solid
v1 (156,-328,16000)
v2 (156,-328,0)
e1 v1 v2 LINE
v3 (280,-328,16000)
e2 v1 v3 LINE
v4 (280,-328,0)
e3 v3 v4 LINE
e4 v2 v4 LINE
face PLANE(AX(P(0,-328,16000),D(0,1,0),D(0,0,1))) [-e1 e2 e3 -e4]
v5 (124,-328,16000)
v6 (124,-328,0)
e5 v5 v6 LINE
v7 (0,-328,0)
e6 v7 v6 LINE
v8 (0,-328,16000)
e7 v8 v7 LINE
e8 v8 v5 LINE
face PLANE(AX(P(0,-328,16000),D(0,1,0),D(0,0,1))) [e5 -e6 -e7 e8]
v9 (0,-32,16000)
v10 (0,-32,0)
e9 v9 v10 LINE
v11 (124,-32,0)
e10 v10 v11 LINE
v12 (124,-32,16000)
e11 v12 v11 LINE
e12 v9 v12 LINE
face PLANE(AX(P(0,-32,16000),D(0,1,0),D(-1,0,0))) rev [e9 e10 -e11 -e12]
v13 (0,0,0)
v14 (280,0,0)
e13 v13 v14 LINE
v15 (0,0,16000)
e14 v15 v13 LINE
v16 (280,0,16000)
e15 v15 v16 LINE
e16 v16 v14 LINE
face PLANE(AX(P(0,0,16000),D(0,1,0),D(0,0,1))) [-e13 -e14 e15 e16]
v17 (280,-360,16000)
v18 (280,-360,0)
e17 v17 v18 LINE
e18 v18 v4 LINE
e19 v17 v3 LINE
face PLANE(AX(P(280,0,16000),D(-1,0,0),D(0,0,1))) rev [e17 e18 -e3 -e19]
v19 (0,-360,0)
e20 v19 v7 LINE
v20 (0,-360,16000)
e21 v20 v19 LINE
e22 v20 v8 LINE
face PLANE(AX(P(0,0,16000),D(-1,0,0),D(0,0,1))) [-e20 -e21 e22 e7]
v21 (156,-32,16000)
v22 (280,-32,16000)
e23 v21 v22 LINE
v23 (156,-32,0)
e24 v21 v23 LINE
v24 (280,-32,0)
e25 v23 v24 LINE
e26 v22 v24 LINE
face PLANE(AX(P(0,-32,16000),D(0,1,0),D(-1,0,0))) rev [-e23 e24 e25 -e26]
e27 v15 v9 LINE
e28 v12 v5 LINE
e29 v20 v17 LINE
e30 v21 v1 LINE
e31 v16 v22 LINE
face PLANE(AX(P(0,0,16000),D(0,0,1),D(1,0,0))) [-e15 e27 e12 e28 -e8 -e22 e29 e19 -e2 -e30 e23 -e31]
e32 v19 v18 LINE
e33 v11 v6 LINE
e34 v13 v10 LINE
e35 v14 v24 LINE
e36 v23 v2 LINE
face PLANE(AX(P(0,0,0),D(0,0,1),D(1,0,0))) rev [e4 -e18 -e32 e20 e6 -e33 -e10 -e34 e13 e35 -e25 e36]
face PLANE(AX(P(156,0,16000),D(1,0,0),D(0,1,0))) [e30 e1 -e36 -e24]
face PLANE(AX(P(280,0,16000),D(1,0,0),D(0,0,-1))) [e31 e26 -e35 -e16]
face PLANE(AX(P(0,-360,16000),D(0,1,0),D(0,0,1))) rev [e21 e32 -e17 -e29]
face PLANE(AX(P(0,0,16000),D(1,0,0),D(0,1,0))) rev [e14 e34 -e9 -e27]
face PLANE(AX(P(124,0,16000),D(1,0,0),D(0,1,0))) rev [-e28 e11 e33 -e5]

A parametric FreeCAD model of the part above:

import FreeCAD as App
import Part
import Sketcher
Q = App.Units.Quantity

doc = App.newDocument("Part")
params = doc.addObject("Spreadsheet::Sheet", "Params")
for row, (alias, value) in enumerate([
    ("sketch1_width", "124 mm"),
    ("sketch1_width2", "280 mm"),
    ("sketch1_height", "296 mm"),
    ("sketch1_height2", "32 mm"),
    ("pad1_length", "16000 mm"),
], start=1):
    params.set(f"A{row}", alias)
    params.set(f"B{row}", "=" + value)
    params.setAlias(f"B{row}", alias)

body = doc.addObject("PartDesign::Body", "Body")

# Sketch on XY plane
sketch1 = doc.addObject("Sketcher::SketchObject", "Sketch")
body.addObject(sketch1)
sketch1.AttachmentSupport = (doc.XY_Plane, [""])
sketch1.MapMode = "FlatFace"
sketch1.addGeometry([
    Part.LineSegment(App.Vector(280, -328, 0), App.Vector(156, -328, 0)),  # 0
    Part.LineSegment(App.Vector(156, -328, 0), App.Vector(156, -32, 0)),  # 1
    Part.LineSegment(App.Vector(156, -32, 0), App.Vector(280, -32, 0)),  # 2
    Part.LineSegment(App.Vector(280, -32, 0), App.Vector(280, 0, 0)),  # 3
    Part.LineSegment(App.Vector(280, 0, 0), App.Vector(0, 0, 0)),  # 4
    Part.LineSegment(App.Vector(0, 0, 0), App.Vector(0, -32, 0)),  # 5
    Part.LineSegment(App.Vector(0, -32, 0), App.Vector(124, -32, 0)),  # 6
    Part.LineSegment(App.Vector(124, -32, 0), App.Vector(124, -328, 0)),  # 7
    Part.LineSegment(App.Vector(124, -328, 0), App.Vector(0, -328, 0)),  # 8
    Part.LineSegment(App.Vector(0, -328, 0), App.Vector(0, -360, 0)),  # 9
    Part.LineSegment(App.Vector(0, -360, 0), App.Vector(280, -360, 0)),  # 10
    Part.LineSegment(App.Vector(280, -360, 0), App.Vector(280, -328, 0)),  # 11
], False)
sketch1.addConstraint([
    Sketcher.Constraint("Coincident", 0, 2, 1, 1),
    Sketcher.Constraint("Coincident", 1, 2, 2, 1),
    Sketcher.Constraint("Coincident", 2, 2, 3, 1),
    Sketcher.Constraint("Coincident", 3, 2, 4, 1),
    Sketcher.Constraint("Coincident", 4, 2, 5, 1),
    Sketcher.Constraint("Coincident", 5, 2, 6, 1),
    Sketcher.Constraint("Coincident", 6, 2, 7, 1),
    Sketcher.Constraint("Coincident", 7, 2, 8, 1),
    Sketcher.Constraint("Coincident", 8, 2, 9, 1),
    Sketcher.Constraint("Coincident", 9, 2, 10, 1),
    Sketcher.Constraint("Coincident", 10, 2, 11, 1),
    Sketcher.Constraint("Coincident", 11, 2, 0, 1),
    Sketcher.Constraint("Horizontal", 0),
    Sketcher.Constraint("Vertical", 1),
    Sketcher.Constraint("Horizontal", 2),
    Sketcher.Constraint("Vertical", 3),
    Sketcher.Constraint("Horizontal", 4),
    Sketcher.Constraint("Vertical", 5),
    Sketcher.Constraint("Horizontal", 6),
    Sketcher.Constraint("Vertical", 7),
    Sketcher.Constraint("Horizontal", 8),
    Sketcher.Constraint("Vertical", 9),
    Sketcher.Constraint("Horizontal", 10),
    Sketcher.Constraint("Vertical", 11),
    Sketcher.Constraint("Coincident", 4, 2, -1, 1),
    Sketcher.Constraint("PointOnObject", 8, 2, -2),
    Sketcher.Constraint("Horizontal", 2, 2, 5, 2),
    Sketcher.Constraint("Horizontal", 0, 2, 7, 2),
    Sketcher.Constraint("Vertical", 3, 2, 10, 2),
    Sketcher.Constraint("Equal", 2, 6),
    Sketcher.Constraint("Equal", 5, 9),
    Sketcher.Constraint("DistanceX", 0, 2, 0, 1, Q("124 mm")),
    Sketcher.Constraint("DistanceX", 4, 2, 4, 1, Q("280 mm")),
    Sketcher.Constraint("DistanceY", 1, 1, 1, 2, Q("296 mm")),
    Sketcher.Constraint("DistanceY", 3, 1, 3, 2, Q("32 mm")),
])
sketch1.setExpression("Constraints[31]", "Params.sketch1_width")
sketch1.setExpression("Constraints[32]", "Params.sketch1_width2")
sketch1.setExpression("Constraints[33]", "Params.sketch1_height")
sketch1.setExpression("Constraints[34]", "Params.sketch1_height2")
pad1 = doc.addObject("PartDesign::Pad", "Pad")
body.addObject(pad1)
pad1.Profile = sketch1
pad1.setExpression("Length", "Params.pad1_length")

doc.recompute()
